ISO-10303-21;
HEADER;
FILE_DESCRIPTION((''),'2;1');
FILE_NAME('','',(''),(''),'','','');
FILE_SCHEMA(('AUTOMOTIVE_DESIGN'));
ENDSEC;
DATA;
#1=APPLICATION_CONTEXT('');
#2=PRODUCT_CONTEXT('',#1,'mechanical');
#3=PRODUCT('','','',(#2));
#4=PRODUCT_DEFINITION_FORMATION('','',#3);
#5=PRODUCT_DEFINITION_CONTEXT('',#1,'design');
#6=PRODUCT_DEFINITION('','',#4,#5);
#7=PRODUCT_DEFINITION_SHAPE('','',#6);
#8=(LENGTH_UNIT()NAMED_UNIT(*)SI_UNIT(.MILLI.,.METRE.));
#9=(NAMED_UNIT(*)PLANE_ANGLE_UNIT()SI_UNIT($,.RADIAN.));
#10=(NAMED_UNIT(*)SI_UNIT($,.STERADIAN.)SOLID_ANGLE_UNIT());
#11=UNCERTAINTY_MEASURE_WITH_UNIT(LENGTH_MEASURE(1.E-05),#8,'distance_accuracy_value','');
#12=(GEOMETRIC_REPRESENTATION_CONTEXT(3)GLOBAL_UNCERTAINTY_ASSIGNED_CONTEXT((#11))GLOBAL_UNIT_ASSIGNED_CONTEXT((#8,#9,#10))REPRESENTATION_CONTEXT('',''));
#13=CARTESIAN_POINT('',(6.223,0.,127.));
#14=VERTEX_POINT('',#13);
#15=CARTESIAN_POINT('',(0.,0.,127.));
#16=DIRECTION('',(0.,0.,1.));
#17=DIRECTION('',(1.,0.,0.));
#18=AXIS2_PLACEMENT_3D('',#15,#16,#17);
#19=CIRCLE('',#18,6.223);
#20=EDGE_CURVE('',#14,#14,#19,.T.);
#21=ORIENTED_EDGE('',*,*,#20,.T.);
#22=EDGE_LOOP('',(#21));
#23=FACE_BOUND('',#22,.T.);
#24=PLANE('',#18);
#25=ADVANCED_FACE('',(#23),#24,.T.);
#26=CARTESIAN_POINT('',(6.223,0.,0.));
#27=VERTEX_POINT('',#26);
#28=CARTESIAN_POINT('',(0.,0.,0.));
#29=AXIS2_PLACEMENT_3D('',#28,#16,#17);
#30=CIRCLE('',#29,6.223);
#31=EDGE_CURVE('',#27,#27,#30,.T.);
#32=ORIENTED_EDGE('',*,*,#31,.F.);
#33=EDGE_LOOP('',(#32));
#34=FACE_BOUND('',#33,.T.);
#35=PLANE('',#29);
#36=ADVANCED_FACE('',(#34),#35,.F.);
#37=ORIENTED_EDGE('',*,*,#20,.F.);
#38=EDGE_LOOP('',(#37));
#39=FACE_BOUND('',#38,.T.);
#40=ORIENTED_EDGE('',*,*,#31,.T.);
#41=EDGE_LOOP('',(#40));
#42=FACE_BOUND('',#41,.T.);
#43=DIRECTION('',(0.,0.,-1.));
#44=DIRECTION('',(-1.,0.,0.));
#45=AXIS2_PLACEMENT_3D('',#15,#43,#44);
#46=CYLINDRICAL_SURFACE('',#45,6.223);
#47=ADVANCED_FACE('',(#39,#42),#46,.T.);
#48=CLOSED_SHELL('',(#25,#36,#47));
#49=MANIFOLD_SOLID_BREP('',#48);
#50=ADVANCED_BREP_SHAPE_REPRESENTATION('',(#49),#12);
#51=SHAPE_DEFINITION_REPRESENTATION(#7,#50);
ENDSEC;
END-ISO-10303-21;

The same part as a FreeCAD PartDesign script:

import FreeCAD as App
import Part
import Sketcher
from FreeCAD import Vector
Q = App.Units.Quantity

doc = App.newDocument("Part")
body = doc.addObject("PartDesign::Body", "Body")

# Sketch on XY plane
sketch1 = body.newObject("Sketcher::SketchObject", "Sketch")
sketch1.AttachmentSupport = (doc.getObject("XY_Plane"), [""])
sketch1.MapMode = "FlatFace"
sketch1.addGeometry(Part.Circle(Vector(0, 0, 0), Vector(0, 0, 1), 6.223), False)
sketch1.addConstraint([
    Sketcher.Constraint("Coincident", 0, 3, -1, 1),
    Sketcher.Constraint("Diameter", 0, Q("0.49 in")),
])
pad1 = body.newObject("PartDesign::Pad", "Pad")
pad1.Profile = sketch1
pad1.Length = Q("5 in")

doc.recompute()
